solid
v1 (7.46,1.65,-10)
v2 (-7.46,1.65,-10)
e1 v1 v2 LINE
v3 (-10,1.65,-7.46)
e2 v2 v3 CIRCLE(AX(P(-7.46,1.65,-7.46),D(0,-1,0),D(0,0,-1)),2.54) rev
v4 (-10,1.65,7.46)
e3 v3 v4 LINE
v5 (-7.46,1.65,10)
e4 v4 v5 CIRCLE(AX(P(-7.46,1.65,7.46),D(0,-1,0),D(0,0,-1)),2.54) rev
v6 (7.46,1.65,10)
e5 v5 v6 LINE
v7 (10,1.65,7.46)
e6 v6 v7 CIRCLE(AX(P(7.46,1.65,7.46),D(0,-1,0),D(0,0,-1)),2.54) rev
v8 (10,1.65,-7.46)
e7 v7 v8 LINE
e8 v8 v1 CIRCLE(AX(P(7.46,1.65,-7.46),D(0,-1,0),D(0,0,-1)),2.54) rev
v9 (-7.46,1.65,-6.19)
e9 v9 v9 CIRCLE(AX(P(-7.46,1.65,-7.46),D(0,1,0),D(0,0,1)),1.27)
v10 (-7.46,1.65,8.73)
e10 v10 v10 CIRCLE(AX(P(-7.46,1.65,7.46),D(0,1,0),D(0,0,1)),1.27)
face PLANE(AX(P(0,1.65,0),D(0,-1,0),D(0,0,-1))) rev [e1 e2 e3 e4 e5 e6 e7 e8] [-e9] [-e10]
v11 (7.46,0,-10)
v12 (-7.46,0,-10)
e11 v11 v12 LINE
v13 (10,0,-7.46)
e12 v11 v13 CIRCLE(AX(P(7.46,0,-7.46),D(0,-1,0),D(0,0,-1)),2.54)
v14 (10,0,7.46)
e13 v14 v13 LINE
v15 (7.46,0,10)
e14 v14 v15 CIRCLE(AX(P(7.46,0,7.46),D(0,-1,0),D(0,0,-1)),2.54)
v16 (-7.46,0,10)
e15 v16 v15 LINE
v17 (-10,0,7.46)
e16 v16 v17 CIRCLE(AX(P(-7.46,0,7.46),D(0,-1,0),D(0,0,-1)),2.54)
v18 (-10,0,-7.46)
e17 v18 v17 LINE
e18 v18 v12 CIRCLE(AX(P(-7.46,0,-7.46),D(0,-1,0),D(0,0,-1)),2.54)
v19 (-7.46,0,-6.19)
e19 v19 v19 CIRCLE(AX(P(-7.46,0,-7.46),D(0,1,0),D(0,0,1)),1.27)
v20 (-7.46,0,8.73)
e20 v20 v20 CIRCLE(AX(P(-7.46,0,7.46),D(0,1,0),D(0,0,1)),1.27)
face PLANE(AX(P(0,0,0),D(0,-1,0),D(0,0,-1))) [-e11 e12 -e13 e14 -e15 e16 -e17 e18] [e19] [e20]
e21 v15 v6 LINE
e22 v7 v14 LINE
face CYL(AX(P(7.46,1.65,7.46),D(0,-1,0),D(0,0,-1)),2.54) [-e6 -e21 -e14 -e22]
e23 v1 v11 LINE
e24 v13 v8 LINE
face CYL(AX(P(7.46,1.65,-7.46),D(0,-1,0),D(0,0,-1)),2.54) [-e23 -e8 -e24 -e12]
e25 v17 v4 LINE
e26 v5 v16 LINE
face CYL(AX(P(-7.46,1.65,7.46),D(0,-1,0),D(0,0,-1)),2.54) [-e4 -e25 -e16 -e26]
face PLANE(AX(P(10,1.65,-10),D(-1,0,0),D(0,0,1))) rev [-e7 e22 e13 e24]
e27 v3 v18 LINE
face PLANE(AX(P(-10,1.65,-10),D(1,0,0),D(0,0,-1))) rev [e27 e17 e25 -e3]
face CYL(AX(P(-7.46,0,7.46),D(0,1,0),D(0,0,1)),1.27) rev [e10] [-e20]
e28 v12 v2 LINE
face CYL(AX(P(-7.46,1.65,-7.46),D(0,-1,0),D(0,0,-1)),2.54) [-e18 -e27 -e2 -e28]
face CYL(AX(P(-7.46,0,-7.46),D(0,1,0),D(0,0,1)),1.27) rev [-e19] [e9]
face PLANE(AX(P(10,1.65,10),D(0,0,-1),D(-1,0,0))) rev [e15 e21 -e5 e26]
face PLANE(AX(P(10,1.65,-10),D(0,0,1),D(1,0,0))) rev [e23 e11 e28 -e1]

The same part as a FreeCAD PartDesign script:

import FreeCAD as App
import Part
import Sketcher
Q = App.Units.Quantity


def edges_at(feature, points):
    """Names of the edges that pass closest to the given points."""
    edges = feature.Shape.Edges
    near = lambda p: min(range(len(edges)), key=lambda i: edges[i].distToShape(Part.Vertex(*p))[0])
    return sorted({f"Edge{near(p) + 1}" for p in points})

doc = App.newDocument("Part")
body = doc.addObject("PartDesign::Body", "Body")

sketch1 = body.newObject("Sketcher::SketchObject", "Sketch")
sketch1.AttachmentSupport = (doc.getObject("XZ_Plane"), [""])
sketch1.MapMode = "FlatFace"
sketch1.addGeometry(Part.LineSegment(App.Vector(-10, -10, 0), App.Vector(-10, 10, 0)), False)
sketch1.addGeometry(Part.LineSegment(App.Vector(-10, 10, 0), App.Vector(10, 10, 0)), False)
sketch1.addGeometry(Part.LineSegment(App.Vector(10, 10, 0), App.Vector(10, -10, 0)), False)
sketch1.addGeometry(Part.LineSegment(App.Vector(10, -10, 0), App.Vector(-10, -10, 0)), False)
sketch1.addConstraint(Sketcher.Constraint("Coincident", 0, 2, 1, 1))
sketch1.addConstraint(Sketcher.Constraint("Coincident", 1, 2, 2, 1))
sketch1.addConstraint(Sketcher.Constraint("Coincident", 2, 2, 3, 1))
sketch1.addConstraint(Sketcher.Constraint("Coincident", 3, 2, 0, 1))
sketch1.addConstraint(Sketcher.Constraint("Vertical", 0))
sketch1.addConstraint(Sketcher.Constraint("Horizontal", 1))
sketch1.addConstraint(Sketcher.Constraint("Vertical", 2))
sketch1.addConstraint(Sketcher.Constraint("Horizontal", 3))
sketch1.addConstraint(Sketcher.Constraint("Symmetric", 0, 2, 2, 2, -1, 1))
sketch1.addConstraint(Sketcher.Constraint("Equal", 3, 0))
sketch1.addConstraint(Sketcher.Constraint("DistanceX", 1, 1, 1, 2, Q("20 mm")))
pad1 = body.newObject("PartDesign::Pad", "Pad")
pad1.Profile = sketch1
pad1.Length = 1.65
pad1.Reversed = True
doc.recompute()

fillet = body.newObject("PartDesign::Fillet", "Fillet")
fillet.Base = (pad1, edges_at(pad1, [
    (-10, 0.825, -10),
    (10, 0.825, -10),
    (10, 0.825, 10),
    (-10, 0.825, 10),
]))
fillet.Radius = 2.54

sketch2 = body.newObject("Sketcher::SketchObject", "Sketch001")
sketch2.AttachmentSupport = (doc.getObject("XZ_Plane"), [""])
sketch2.MapMode = "FlatFace"
sketch2.AttachmentOffset = App.Placement(App.Vector(0, 0, -1.65), App.Rotation())
sketch2.addGeometry(Part.Circle(App.Vector(-7.5, -7.5, 0), App.Vector(0, 0, 1), 1.3), False)
sketch2.addGeometry(Part.Circle(App.Vector(-7.5, 7.5, 0), App.Vector(0, 0, 1), 1.3), False)
sketch2.addConstraint(Sketcher.Constraint("Equal", 0, 1))
sketch2.addConstraint(Sketcher.Constraint("Symmetric", 0, 3, 1, 3, -1))
sketch2.addConstraint(Sketcher.Constraint("Diameter", 0, Q("2.54 mm")))
sketch2.addConstraint(Sketcher.Constraint("DistanceX", 0, 3, -1, 1, Q("7.46 mm")))
sketch2.addConstraint(Sketcher.Constraint("DistanceY", 0, 3, -1, 1, Q("7.46 mm")))
pocket1 = body.newObject("PartDesign::Pocket", "Pocket")
pocket1.Profile = sketch2
pocket1.Type = "ThroughAll"
pocket1.Reversed = True

doc.recompute()
